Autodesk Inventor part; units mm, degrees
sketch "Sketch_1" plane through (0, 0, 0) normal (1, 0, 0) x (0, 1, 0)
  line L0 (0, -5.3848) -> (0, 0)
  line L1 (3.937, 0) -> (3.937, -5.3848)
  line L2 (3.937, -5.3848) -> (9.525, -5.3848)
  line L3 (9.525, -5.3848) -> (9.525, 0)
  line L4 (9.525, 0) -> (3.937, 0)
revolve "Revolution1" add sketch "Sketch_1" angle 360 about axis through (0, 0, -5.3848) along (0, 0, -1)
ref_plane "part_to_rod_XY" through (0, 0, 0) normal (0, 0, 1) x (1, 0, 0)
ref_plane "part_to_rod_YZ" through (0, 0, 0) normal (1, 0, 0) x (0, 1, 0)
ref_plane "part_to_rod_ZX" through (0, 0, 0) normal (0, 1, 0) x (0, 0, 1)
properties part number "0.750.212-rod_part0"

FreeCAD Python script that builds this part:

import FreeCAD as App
import Part
import Sketcher
from FreeCAD import Vector
Q = App.Units.Quantity


def add_polygon(sketch, points):
    """Adds a closed chain of lines whose ends are joined by coincident constraints."""
    first, n = sketch.GeometryCount, len(points)
    for a, b in zip(points, points[1:] + points[:1]):
        sketch.addGeometry(Part.LineSegment(App.Vector(*a, 0), App.Vector(*b, 0)), False)
    for i in range(n):
        sketch.addConstraint(Sketcher.Constraint("Coincident", first + i, 2, first + (i + 1) % n, 1))

doc = App.newDocument("Part")
body = doc.addObject("PartDesign::Body", "Body")

sketch1 = body.newObject("Sketcher::SketchObject", "Sketch")
sketch1.AttachmentSupport = (doc.getObject("YZ_Plane"), [""])
sketch1.MapMode = "FlatFace"
add_polygon(sketch1, [(10, 0), (4, 0), (4, -5), (10, -5)])
sketch1.addConstraint(Sketcher.Constraint("Horizontal", 0))
sketch1.addConstraint(Sketcher.Constraint("Vertical", 1))
sketch1.addConstraint(Sketcher.Constraint("Horizontal", 2))
sketch1.addConstraint(Sketcher.Constraint("Vertical", 3))
sketch1.addConstraint(Sketcher.Constraint("PointOnObject", 0, 2, -1))
sketch1.addConstraint(Sketcher.Constraint("DistanceX", 0, 2, 0, 1, Q("0.22 in")))
sketch1.addConstraint(Sketcher.Constraint("DistanceY", 1, 2, 1, 1, Q("0.212 in")))
sketch1.addConstraint(Sketcher.Constraint("DistanceX", -1, 1, 0, 2, Q("0.155 in")))
revolution = body.newObject("PartDesign::Revolution", "Revolution")
revolution.Profile = sketch1
revolution.ReferenceAxis = (sketch1, ["V_Axis"])
revolution.Angle = 360

doc.recompute()
